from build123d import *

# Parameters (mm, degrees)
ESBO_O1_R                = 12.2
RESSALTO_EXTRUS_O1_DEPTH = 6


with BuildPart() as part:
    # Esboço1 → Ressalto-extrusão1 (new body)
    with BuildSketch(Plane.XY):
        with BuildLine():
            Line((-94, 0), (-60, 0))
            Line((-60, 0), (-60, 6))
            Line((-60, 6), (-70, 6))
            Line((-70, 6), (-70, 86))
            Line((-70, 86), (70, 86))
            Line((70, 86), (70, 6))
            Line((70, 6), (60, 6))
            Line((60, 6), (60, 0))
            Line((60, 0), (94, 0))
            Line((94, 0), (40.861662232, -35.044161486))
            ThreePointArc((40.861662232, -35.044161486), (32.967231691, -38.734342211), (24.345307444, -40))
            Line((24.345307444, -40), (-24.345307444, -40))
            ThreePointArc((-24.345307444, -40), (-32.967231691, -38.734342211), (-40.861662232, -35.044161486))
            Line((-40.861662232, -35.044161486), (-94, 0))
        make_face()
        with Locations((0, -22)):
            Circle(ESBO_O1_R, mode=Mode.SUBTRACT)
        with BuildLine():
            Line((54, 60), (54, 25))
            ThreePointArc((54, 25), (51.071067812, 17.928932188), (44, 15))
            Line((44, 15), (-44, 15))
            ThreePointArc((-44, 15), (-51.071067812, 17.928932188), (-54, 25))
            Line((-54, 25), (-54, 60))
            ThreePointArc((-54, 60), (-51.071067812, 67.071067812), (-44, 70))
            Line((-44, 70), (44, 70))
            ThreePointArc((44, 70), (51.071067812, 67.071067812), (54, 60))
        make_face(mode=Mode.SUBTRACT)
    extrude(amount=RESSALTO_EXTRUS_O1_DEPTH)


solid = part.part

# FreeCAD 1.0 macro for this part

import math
import FreeCAD as App
import Part
import Sketcher
from FreeCAD import Vector
Q = App.Units.Quantity

doc = App.newDocument("Part")
params = doc.addObject("Spreadsheet::Sheet", "Params")
for row, (alias, value) in enumerate([
    ("sketch1_radius", "30 mm"),
    ("sketch1_radius2", "10 mm"),
    ("sketch1_diameter", "24.4 mm"),
    ("sketch1_width", "34 mm"),
    ("sketch1_width2", "10 mm"),
    ("pad1_length", "6 mm"),
], start=1):
    params.set(f"A{row}", alias)
    params.set(f"B{row}", "=" + value)
    params.setAlias(f"B{row}", alias)

body = doc.addObject("PartDesign::Body", "Body")

# Sketch on XY plane
sketch1 = body.newObject("Sketcher::SketchObject", "Sketch")
sketch1.AttachmentSupport = (doc.getObject("XY_Plane"), [""])
sketch1.MapMode = "FlatFace"
sketch1.addGeometry(Part.LineSegment(Vector(-60, 0, 0), Vector(-94, 0, 0)), False)
sketch1.addGeometry(Part.LineSegment(Vector(-94, 0, 0), Vector(-41, -35, 0)), False)
sketch1.addGeometry(Part.ArcOfCircle(Part.Circle(Vector(-24, -10, 0), Vector(0, 0, 1), 30), math.radians(-123), math.radians(-90)), False)
sketch1.addGeometry(Part.LineSegment(Vector(-24, -40, 0), Vector(24, -40, 0)), False)
sketch1.addGeometry(Part.ArcOfCircle(Part.Circle(Vector(24, -10, 0), Vector(0, 0, 1), 30), math.radians(-90), math.radians(-57)), False)
sketch1.addGeometry(Part.LineSegment(Vector(41, -35, 0), Vector(94, 0, 0)), False)
sketch1.addGeometry(Part.LineSegment(Vector(94, 0, 0), Vector(60, 0, 0)), False)
sketch1.addGeometry(Part.LineSegment(Vector(60, 0, 0), Vector(60, 6, 0)), False)
sketch1.addGeometry(Part.LineSegment(Vector(60, 6, 0), Vector(70, 6, 0)), False)
sketch1.addGeometry(Part.LineSegment(Vector(70, 6, 0), Vector(70, 86, 0)), False)
sketch1.addGeometry(Part.LineSegment(Vector(70, 86, 0), Vector(-70, 86, 0)), False)
sketch1.addGeometry(Part.LineSegment(Vector(-70, 86, 0), Vector(-70, 6, 0)), False)
sketch1.addGeometry(Part.LineSegment(Vector(-70, 6, 0), Vector(-60, 6, 0)), False)
sketch1.addGeometry(Part.LineSegment(Vector(-60, 6, 0), Vector(-60, 0, 0)), False)
sketch1.addGeometry(Part.Circle(Vector(0, -22, 0), Vector(0, 0, 1), 12), False)
sketch1.addGeometry(Part.LineSegment(Vector(54, 60, 0), Vector(54, 25, 0)), False)
sketch1.addGeometry(Part.ArcOfCircle(Part.Circle(Vector(44, 25, 0), Vector(0, 0, 1), 10), math.radians(-90), math.radians(0)), False)
sketch1.addGeometry(Part.LineSegment(Vector(44, 15, 0), Vector(-44, 15, 0)), False)
sketch1.addGeometry(Part.ArcOfCircle(Part.Circle(Vector(-44, 25, 0), Vector(0, 0, 1), 10), math.radians(180), math.radians(270)), False)
sketch1.addGeometry(Part.LineSegment(Vector(-54, 25, 0), Vector(-54, 60, 0)), False)
sketch1.addGeometry(Part.ArcOfCircle(Part.Circle(Vector(-44, 60, 0), Vector(0, 0, 1), 10), math.radians(90), math.radians(180)), False)
sketch1.addGeometry(Part.LineSegment(Vector(-44, 70, 0), Vector(44, 70, 0)), False)
sketch1.addGeometry(Part.ArcOfCircle(Part.Circle(Vector(44, 60, 0), Vector(0, 0, 1), 10), math.radians(0), math.radians(90)), False)
sketch1.addConstraint(Sketcher.Constraint("Coincident", 0, 2, 1, 1))
sketch1.addConstraint(Sketcher.Constraint("Tangent", 1, 2, 2, 1))
sketch1.addConstraint(Sketcher.Constraint("Tangent", 2, 2, 3, 1))
sketch1.addConstraint(Sketcher.Constraint("Tangent", 3, 2, 4, 1))
sketch1.addConstraint(Sketcher.Constraint("Tangent", 4, 2, 5, 1))
sketch1.addConstraint(Sketcher.Constraint("Coincident", 5, 2, 6, 1))
sketch1.addConstraint(Sketcher.Constraint("Coincident", 6, 2, 7, 1))
sketch1.addConstraint(Sketcher.Constraint("Coincident", 7, 2, 8, 1))
sketch1.addConstraint(Sketcher.Constraint("Coincident", 8, 2, 9, 1))
sketch1.addConstraint(Sketcher.Constraint("Coincident", 9, 2, 10, 1))
sketch1.addConstraint(Sketcher.Constraint("Coincident", 10, 2, 11, 1))
sketch1.addConstraint(Sketcher.Constraint("Coincident", 11, 2, 12, 1))
sketch1.addConstraint(Sketcher.Constraint("Coincident", 12, 2, 13, 1))
sketch1.addConstraint(Sketcher.Constraint("Coincident", 13, 2, 0, 1))
sketch1.addConstraint(Sketcher.Constraint("Tangent", 15, 2, 16, 2))
sketch1.addConstraint(Sketcher.Constraint("Tangent", 16, 1, 17, 1))
sketch1.addConstraint(Sketcher.Constraint("Tangent", 17, 2, 18, 2))
sketch1.addConstraint(Sketcher.Constraint("Tangent", 18, 1, 19, 1))
sketch1.addConstraint(Sketcher.Constraint("Tangent", 19, 2, 20, 2))
sketch1.addConstraint(Sketcher.Constraint("Tangent", 20, 1, 21, 1))
sketch1.addConstraint(Sketcher.Constraint("Tangent", 21, 2, 22, 2))
sketch1.addConstraint(Sketcher.Constraint("Tangent", 22, 1, 15, 1))
sketch1.addConstraint(Sketcher.Constraint("Horizontal", 0))
sketch1.addConstraint(Sketcher.Constraint("Horizontal", 3))
sketch1.addConstraint(Sketcher.Constraint("Horizontal", 6))
sketch1.addConstraint(Sketcher.Constraint("Vertical", 7))
sketch1.addConstraint(Sketcher.Constraint("Horizontal", 8))
sketch1.addConstraint(Sketcher.Constraint("Vertical", 9))
sketch1.addConstraint(Sketcher.Constraint("Horizontal", 10))
sketch1.addConstraint(Sketcher.Constraint("Vertical", 11))
sketch1.addConstraint(Sketcher.Constraint("Horizontal", 12))
sketch1.addConstraint(Sketcher.Constraint("Vertical", 13))
sketch1.addConstraint(Sketcher.Constraint("Vertical", 15))
sketch1.addConstraint(Sketcher.Constraint("Horizontal", 17))
sketch1.addConstraint(Sketcher.Constraint("Vertical", 19))
sketch1.addConstraint(Sketcher.Constraint("Horizontal", 21))
sketch1.addConstraint(Sketcher.Constraint("Equal", 2, 4))
sketch1.addConstraint(Sketcher.Constraint("Equal", 16, 18))
sketch1.addConstraint(Sketcher.Constraint("Equal", 18, 20))
sketch1.addConstraint(Sketcher.Constraint("Equal", 20, 22))
sketch1.addConstraint(Sketcher.Constraint("Symmetric", 0, 2, 5, 2, -1, 1))
sketch1.addConstraint(Sketcher.Constraint("Symmetric", 1, 2, 4, 2, -2))
sketch1.addConstraint(Sketcher.Constraint("Symmetric", 8, 2, 11, 2, -2))
sketch1.addConstraint(Sketcher.Constraint("PointOnObject", 14, 3, -2))
sketch1.addConstraint(Sketcher.Constraint("Equal", 0, 6))
sketch1.addConstraint(Sketcher.Constraint("Radius", 2, Q("30 mm")))
sketch1.addConstraint(Sketcher.Constraint("Radius", 16, Q("10 mm")))
sketch1.addConstraint(Sketcher.Constraint("Diameter", 14, Q("24.4 mm")))
sketch1.addConstraint(Sketcher.Constraint("DistanceX", 0, 2, 0, 1, Q("34 mm")))
sketch1.addConstraint(Sketcher.Constraint("DistanceX", 8, 1, 8, 2, Q("10 mm")))
sketch1.addConstraint(Sketcher.Constraint("DistanceX", 10, 2, 10, 1, Q("140 mm")))
sketch1.addConstraint(Sketcher.Constraint("DistanceX", 17, 2, 17, 1, Q("88 mm")))
sketch1.addConstraint(Sketcher.Constraint("DistanceY", 7, 1, 7, 2, Q("6 mm")))
sketch1.addConstraint(Sketcher.Constraint("DistanceY", 9, 1, 9, 2, Q("80 mm")))
sketch1.addConstraint(Sketcher.Constraint("DistanceY", 15, 2, 15, 1, Q("35 mm")))
sketch1.addConstraint(Sketcher.Constraint("DistanceY", 2, 3, -1, 1, Q("10 mm")))
sketch1.addConstraint(Sketcher.Constraint("DistanceY", 14, 3, -1, 1, Q("22 mm")))
sketch1.addConstraint(Sketcher.Constraint("DistanceX", -1, 1, 16, 3, Q("44 mm")))
sketch1.addConstraint(Sketcher.Constraint("DistanceY", -1, 1, 16, 3, Q("25 mm")))
sketch1.addConstraint(Sketcher.Constraint("DistanceX", 3, 1, 3, 2, Q("48.690615 mm")))
sketch1.setExpression("Constraints[45]", "Params.sketch1_radius")
sketch1.setExpression("Constraints[46]", "Params.sketch1_radius2")
sketch1.setExpression("Constraints[47]", "Params.sketch1_diameter")
sketch1.setExpression("Constraints[48]", "Params.sketch1_width")
sketch1.setExpression("Constraints[49]", "Params.sketch1_width2")
pad1 = body.newObject("PartDesign::Pad", "Pad")
pad1.Profile = sketch1
pad1.setExpression("Length", "Params.pad1_length")

doc.recompute()
